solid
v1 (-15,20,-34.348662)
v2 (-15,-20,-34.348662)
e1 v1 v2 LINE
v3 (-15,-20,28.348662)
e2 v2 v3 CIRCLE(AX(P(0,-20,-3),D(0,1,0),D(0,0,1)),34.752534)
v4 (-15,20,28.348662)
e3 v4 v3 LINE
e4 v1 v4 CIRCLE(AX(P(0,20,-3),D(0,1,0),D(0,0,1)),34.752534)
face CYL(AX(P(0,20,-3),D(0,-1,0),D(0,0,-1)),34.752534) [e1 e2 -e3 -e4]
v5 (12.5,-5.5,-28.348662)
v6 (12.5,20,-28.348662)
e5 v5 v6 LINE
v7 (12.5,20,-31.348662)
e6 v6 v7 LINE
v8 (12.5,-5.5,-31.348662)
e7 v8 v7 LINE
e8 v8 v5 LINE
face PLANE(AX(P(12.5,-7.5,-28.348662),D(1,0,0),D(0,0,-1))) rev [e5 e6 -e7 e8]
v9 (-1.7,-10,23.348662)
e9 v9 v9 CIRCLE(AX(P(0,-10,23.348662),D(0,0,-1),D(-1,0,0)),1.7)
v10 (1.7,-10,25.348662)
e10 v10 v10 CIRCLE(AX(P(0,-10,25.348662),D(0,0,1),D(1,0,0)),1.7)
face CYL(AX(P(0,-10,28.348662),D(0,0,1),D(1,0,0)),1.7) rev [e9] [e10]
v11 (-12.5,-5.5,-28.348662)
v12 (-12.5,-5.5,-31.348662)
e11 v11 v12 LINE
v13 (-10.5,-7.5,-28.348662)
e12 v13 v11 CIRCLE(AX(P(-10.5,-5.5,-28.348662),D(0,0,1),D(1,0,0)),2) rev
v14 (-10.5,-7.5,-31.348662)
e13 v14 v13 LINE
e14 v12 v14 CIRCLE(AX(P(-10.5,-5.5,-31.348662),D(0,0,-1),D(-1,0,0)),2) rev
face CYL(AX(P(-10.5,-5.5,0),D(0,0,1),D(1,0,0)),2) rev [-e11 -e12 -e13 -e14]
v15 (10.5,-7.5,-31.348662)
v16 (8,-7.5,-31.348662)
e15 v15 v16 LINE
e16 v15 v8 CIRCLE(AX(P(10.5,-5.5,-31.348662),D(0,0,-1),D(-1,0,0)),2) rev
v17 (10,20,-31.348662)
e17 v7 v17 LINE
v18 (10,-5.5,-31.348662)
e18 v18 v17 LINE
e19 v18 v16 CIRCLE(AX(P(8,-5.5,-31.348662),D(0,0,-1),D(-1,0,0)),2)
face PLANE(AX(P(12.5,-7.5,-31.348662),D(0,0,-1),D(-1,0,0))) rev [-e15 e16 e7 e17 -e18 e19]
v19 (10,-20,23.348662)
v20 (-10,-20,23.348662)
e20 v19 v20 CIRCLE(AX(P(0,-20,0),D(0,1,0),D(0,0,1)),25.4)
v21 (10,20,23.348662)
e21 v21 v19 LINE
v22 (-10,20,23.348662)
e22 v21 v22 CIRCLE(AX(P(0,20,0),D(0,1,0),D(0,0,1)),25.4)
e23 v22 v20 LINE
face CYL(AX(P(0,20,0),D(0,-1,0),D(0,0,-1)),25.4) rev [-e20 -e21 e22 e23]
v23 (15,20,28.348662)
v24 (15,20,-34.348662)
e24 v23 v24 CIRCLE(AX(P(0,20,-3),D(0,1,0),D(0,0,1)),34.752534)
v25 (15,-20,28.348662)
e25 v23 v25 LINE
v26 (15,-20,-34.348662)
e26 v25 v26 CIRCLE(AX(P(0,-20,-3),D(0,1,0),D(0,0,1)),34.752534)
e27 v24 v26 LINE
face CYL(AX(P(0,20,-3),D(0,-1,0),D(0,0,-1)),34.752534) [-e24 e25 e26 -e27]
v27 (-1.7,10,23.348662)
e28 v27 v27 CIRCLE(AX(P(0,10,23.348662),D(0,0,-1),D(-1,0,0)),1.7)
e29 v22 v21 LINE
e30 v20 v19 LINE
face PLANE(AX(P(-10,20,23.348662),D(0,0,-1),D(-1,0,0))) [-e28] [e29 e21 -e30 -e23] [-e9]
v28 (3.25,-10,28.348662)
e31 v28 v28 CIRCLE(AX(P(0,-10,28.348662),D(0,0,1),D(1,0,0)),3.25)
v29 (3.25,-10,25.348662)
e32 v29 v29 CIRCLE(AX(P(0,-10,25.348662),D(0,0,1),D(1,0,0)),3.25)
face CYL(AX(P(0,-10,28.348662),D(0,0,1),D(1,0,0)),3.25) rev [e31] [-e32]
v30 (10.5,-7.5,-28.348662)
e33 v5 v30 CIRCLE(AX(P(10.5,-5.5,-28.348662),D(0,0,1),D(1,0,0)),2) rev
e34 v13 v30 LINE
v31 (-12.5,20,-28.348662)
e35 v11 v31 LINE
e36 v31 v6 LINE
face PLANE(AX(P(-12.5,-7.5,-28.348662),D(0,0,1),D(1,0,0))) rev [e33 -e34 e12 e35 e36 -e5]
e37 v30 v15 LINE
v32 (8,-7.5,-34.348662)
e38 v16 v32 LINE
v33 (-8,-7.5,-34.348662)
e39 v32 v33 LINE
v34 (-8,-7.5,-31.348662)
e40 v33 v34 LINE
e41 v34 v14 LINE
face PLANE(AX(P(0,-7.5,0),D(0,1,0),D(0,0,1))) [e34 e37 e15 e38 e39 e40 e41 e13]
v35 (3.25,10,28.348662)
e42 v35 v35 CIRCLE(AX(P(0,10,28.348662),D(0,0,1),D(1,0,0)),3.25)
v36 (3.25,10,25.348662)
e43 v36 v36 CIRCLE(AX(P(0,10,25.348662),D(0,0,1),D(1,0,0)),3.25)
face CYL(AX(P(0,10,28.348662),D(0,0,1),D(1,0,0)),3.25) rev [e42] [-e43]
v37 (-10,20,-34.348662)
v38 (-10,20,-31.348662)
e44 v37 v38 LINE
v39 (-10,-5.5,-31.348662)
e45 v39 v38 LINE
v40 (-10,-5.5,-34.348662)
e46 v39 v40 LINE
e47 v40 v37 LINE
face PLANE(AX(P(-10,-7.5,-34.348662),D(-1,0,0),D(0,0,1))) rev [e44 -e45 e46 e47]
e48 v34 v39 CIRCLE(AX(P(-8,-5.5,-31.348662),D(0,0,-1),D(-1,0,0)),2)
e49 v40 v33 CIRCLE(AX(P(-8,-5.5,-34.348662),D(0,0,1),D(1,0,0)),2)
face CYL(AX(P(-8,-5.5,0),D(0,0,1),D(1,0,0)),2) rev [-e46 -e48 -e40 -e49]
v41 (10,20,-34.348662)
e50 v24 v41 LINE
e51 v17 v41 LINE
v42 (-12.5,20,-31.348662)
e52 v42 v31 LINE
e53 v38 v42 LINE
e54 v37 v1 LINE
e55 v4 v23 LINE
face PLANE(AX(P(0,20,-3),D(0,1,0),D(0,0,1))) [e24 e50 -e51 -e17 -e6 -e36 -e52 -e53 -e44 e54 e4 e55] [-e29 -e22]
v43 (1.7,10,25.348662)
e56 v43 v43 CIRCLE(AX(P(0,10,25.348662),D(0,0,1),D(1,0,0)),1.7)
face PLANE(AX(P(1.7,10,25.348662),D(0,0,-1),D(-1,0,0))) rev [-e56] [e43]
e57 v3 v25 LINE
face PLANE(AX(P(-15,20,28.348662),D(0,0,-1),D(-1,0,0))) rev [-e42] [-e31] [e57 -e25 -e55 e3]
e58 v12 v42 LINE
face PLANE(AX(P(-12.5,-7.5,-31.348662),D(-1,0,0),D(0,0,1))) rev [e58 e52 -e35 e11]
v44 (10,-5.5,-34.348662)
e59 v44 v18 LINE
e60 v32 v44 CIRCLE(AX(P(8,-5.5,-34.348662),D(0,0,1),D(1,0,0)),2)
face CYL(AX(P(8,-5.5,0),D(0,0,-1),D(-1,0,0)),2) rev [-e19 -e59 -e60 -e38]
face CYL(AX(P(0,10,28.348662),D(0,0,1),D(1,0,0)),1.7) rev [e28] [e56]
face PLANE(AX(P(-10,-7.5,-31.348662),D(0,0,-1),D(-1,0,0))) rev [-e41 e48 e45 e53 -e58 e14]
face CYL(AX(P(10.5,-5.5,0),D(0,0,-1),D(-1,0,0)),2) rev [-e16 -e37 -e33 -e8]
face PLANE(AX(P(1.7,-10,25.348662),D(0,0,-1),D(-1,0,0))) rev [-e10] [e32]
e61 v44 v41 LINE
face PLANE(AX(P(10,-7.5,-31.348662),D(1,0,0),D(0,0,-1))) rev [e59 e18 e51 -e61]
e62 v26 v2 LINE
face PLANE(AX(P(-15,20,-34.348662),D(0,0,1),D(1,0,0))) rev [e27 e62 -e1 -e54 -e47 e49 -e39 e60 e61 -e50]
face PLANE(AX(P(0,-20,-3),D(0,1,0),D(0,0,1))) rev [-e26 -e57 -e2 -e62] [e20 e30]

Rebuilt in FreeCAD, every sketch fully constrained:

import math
import FreeCAD as App
import Part
import Sketcher

V = App.Vector
Q = App.Units.Quantity


def edges_at(feature, points):
    """Names of the edges that pass closest to the given points."""
    edges = feature.Shape.Edges
    near = lambda p: min(range(len(edges)), key=lambda i: edges[i].distToShape(Part.Vertex(*p))[0])
    return sorted({f"Edge{near(p) + 1}" for p in points})


def add_polygon(sketch, points):
    """Adds a closed chain of lines whose ends are joined by coincident constraints."""
    first, n = sketch.GeometryCount, len(points)
    for a, b in zip(points, points[1:] + points[:1]):
        sketch.addGeometry(Part.LineSegment(App.Vector(*a, 0), App.Vector(*b, 0)), False)
    for i in range(n):
        sketch.addConstraint(Sketcher.Constraint("Coincident", first + i, 2, first + (i + 1) % n, 1))

doc = App.newDocument("Part")
body = doc.addObject("PartDesign::Body", "Body")

# Sketch on XZ plane
sketch1 = body.newObject("Sketcher::SketchObject", "Sketch")
sketch1.AttachmentSupport = (doc.getObject("XZ_Plane"), [""])
sketch1.MapMode = "FlatFace"
sketch1.addGeometry(Part.LineSegment(V(-15, 28, 0), V(15, 28, 0)), False)
sketch1.addGeometry(Part.ArcOfCircle(Part.Circle(V(0, -3, 0), V(0, 0, 1), 35), math.radians(-64), math.radians(64)), False)
sketch1.addGeometry(Part.LineSegment(V(15, -34, 0), V(-15, -34, 0)), False)
sketch1.addGeometry(Part.ArcOfCircle(Part.Circle(V(0, -3, 0), V(0, 0, 1), 35), math.radians(116), math.radians(244)), False)
sketch1.addGeometry(Part.LineSegment(V(10, 23, 0), V(-10, 23, 0)), False)
sketch1.addGeometry(Part.ArcOfCircle(Part.Circle(V(0, 0, 0), V(0, 0, 1), 25), math.radians(113), math.radians(427)), False)
sketch1.addConstraint(Sketcher.Constraint("Coincident", 0, 2, 1, 2))
sketch1.addConstraint(Sketcher.Constraint("Coincident", 1, 1, 2, 1))
sketch1.addConstraint(Sketcher.Constraint("Coincident", 2, 2, 3, 2))
sketch1.addConstraint(Sketcher.Constraint("Coincident", 3, 1, 0, 1))
sketch1.addConstraint(Sketcher.Constraint("Coincident", 4, 1, 5, 2))
sketch1.addConstraint(Sketcher.Constraint("Coincident", 5, 1, 4, 2))
sketch1.addConstraint(Sketcher.Constraint("Horizontal", 0))
sketch1.addConstraint(Sketcher.Constraint("Horizontal", 2))
sketch1.addConstraint(Sketcher.Constraint("Horizontal", 4))
sketch1.addConstraint(Sketcher.Constraint("Coincident", 5, 3, -1, 1))
sketch1.addConstraint(Sketcher.Constraint("Coincident", 3, 3, 1, 3))
sketch1.addConstraint(Sketcher.Constraint("Equal", 1, 3))
sketch1.addConstraint(Sketcher.Constraint("PointOnObject", 1, 3, -2))
sketch1.addConstraint(Sketcher.Constraint("Vertical", 0, 2, 1, 1))
sketch1.addConstraint(Sketcher.Constraint("Radius", 5, Q("25.4 mm")))
sketch1.addConstraint(Sketcher.Constraint("DistanceX", 0, 1, 0, 2, Q("30 mm")))
sketch1.addConstraint(Sketcher.Constraint("DistanceX", 4, 2, 4, 1, Q("20 mm")))
sketch1.addConstraint(Sketcher.Constraint("DistanceY", 1, 3, -1, 1, Q("3 mm")))
sketch1.addConstraint(Sketcher.Constraint("DistanceY", 4, 1, 0, 2, Q("5 mm")))
pad1 = body.newObject("PartDesign::Pad", "Pad")
pad1.Profile = sketch1
pad1.Length = 40
pad1.Midplane = True

# Sketch on XZ plane
sketch2 = body.newObject("Sketcher::SketchObject", "Sketch001")
sketch2.AttachmentSupport = (doc.getObject("XZ_Plane"), [""])
sketch2.MapMode = "FlatFace"
sketch2.AttachmentOffset = App.Placement(V(0, 0, -20), App.Rotation())
add_polygon(sketch2, [(-10, -34.3), (-10, -31.3), (-12.5, -31.3), (-12.5, -28.3), (12.5, -28.3), (12.5, -31.3), (10, -31.3), (10, -34.3)])  # lines 0-7
sketch2.addConstraint(Sketcher.Constraint("Vertical", 0))
sketch2.addConstraint(Sketcher.Constraint("Horizontal", 1))
sketch2.addConstraint(Sketcher.Constraint("Vertical", 2))
sketch2.addConstraint(Sketcher.Constraint("Horizontal", 3))
sketch2.addConstraint(Sketcher.Constraint("Vertical", 4))
sketch2.addConstraint(Sketcher.Constraint("Horizontal", 5))
sketch2.addConstraint(Sketcher.Constraint("Vertical", 6))
sketch2.addConstraint(Sketcher.Constraint("Horizontal", 7))
sketch2.addConstraint(Sketcher.Constraint("Symmetric", 1, 2, 4, 2, -2))
sketch2.addConstraint(Sketcher.Constraint("Equal", 1, 5))
sketch2.addConstraint(Sketcher.Constraint("Equal", 0, 2))
sketch2.addConstraint(Sketcher.Constraint("DistanceX", 3, 1, 3, 2, Q("25 mm")))
sketch2.addConstraint(Sketcher.Constraint("DistanceX", 7, 2, 7, 1, Q("20 mm")))
sketch2.addConstraint(Sketcher.Constraint("DistanceY", 0, 1, 0, 2, Q("3 mm")))
sketch2.addConstraint(Sketcher.Constraint("DistanceY", 0, 2, -1, 1, Q("31.348662 mm")))
pocket1 = body.newObject("PartDesign::Pocket", "Pocket")
pocket1.Profile = sketch2
pocket1.Length = 27.5
pocket1.Reversed = True

# Sketch on XY plane
sketch3 = body.newObject("Sketcher::SketchObject", "Sketch002")
sketch3.AttachmentSupport = (doc.getObject("XY_Plane"), [""])
sketch3.MapMode = "FlatFace"
sketch3.AttachmentOffset = App.Placement(V(0, 0, 28.348662), App.Rotation())
sketch3.addGeometry(Part.Circle(V(0, 10, 0), V(0, 0, 1), 1.7), False)
sketch3.addGeometry(Part.Circle(V(0, -10, 0), V(0, 0, 1), 1.7), False)
sketch3.addConstraint(Sketcher.Constraint("Equal", 0, 1))
sketch3.addConstraint(Sketcher.Constraint("Symmetric", 0, 3, 1, 3, -1, 1))
sketch3.addConstraint(Sketcher.Constraint("PointOnObject", 0, 3, -2))
sketch3.addConstraint(Sketcher.Constraint("Diameter", 0, Q("3.4 mm")))
sketch3.addConstraint(Sketcher.Constraint("DistanceY", -1, 1, 0, 3, Q("10 mm")))
doc.recompute()
hole = body.newObject("PartDesign::Hole", "Hole")
hole.Profile = sketch3
hole.ThreadType = "None"
hole.Diameter = 3.4
hole.DepthType = "Dimension"
hole.Depth = 5
hole.DrillPoint = "Flat"
hole.HoleCutType = "Counterbore"
hole.HoleCutDiameter = 6.5
hole.HoleCutDepth = 3
doc.recompute()

fillet = body.newObject("PartDesign::Fillet", "Fillet")
fillet.Base = (hole, edges_at(hole, [
    (10, -7.5, -32.849),
    (12.5, -7.5, -29.849),
    (-12.5, -7.5, -29.849),
    (-10, -7.5, -32.849),
]))
fillet.Radius = 2

doc.recompute()
